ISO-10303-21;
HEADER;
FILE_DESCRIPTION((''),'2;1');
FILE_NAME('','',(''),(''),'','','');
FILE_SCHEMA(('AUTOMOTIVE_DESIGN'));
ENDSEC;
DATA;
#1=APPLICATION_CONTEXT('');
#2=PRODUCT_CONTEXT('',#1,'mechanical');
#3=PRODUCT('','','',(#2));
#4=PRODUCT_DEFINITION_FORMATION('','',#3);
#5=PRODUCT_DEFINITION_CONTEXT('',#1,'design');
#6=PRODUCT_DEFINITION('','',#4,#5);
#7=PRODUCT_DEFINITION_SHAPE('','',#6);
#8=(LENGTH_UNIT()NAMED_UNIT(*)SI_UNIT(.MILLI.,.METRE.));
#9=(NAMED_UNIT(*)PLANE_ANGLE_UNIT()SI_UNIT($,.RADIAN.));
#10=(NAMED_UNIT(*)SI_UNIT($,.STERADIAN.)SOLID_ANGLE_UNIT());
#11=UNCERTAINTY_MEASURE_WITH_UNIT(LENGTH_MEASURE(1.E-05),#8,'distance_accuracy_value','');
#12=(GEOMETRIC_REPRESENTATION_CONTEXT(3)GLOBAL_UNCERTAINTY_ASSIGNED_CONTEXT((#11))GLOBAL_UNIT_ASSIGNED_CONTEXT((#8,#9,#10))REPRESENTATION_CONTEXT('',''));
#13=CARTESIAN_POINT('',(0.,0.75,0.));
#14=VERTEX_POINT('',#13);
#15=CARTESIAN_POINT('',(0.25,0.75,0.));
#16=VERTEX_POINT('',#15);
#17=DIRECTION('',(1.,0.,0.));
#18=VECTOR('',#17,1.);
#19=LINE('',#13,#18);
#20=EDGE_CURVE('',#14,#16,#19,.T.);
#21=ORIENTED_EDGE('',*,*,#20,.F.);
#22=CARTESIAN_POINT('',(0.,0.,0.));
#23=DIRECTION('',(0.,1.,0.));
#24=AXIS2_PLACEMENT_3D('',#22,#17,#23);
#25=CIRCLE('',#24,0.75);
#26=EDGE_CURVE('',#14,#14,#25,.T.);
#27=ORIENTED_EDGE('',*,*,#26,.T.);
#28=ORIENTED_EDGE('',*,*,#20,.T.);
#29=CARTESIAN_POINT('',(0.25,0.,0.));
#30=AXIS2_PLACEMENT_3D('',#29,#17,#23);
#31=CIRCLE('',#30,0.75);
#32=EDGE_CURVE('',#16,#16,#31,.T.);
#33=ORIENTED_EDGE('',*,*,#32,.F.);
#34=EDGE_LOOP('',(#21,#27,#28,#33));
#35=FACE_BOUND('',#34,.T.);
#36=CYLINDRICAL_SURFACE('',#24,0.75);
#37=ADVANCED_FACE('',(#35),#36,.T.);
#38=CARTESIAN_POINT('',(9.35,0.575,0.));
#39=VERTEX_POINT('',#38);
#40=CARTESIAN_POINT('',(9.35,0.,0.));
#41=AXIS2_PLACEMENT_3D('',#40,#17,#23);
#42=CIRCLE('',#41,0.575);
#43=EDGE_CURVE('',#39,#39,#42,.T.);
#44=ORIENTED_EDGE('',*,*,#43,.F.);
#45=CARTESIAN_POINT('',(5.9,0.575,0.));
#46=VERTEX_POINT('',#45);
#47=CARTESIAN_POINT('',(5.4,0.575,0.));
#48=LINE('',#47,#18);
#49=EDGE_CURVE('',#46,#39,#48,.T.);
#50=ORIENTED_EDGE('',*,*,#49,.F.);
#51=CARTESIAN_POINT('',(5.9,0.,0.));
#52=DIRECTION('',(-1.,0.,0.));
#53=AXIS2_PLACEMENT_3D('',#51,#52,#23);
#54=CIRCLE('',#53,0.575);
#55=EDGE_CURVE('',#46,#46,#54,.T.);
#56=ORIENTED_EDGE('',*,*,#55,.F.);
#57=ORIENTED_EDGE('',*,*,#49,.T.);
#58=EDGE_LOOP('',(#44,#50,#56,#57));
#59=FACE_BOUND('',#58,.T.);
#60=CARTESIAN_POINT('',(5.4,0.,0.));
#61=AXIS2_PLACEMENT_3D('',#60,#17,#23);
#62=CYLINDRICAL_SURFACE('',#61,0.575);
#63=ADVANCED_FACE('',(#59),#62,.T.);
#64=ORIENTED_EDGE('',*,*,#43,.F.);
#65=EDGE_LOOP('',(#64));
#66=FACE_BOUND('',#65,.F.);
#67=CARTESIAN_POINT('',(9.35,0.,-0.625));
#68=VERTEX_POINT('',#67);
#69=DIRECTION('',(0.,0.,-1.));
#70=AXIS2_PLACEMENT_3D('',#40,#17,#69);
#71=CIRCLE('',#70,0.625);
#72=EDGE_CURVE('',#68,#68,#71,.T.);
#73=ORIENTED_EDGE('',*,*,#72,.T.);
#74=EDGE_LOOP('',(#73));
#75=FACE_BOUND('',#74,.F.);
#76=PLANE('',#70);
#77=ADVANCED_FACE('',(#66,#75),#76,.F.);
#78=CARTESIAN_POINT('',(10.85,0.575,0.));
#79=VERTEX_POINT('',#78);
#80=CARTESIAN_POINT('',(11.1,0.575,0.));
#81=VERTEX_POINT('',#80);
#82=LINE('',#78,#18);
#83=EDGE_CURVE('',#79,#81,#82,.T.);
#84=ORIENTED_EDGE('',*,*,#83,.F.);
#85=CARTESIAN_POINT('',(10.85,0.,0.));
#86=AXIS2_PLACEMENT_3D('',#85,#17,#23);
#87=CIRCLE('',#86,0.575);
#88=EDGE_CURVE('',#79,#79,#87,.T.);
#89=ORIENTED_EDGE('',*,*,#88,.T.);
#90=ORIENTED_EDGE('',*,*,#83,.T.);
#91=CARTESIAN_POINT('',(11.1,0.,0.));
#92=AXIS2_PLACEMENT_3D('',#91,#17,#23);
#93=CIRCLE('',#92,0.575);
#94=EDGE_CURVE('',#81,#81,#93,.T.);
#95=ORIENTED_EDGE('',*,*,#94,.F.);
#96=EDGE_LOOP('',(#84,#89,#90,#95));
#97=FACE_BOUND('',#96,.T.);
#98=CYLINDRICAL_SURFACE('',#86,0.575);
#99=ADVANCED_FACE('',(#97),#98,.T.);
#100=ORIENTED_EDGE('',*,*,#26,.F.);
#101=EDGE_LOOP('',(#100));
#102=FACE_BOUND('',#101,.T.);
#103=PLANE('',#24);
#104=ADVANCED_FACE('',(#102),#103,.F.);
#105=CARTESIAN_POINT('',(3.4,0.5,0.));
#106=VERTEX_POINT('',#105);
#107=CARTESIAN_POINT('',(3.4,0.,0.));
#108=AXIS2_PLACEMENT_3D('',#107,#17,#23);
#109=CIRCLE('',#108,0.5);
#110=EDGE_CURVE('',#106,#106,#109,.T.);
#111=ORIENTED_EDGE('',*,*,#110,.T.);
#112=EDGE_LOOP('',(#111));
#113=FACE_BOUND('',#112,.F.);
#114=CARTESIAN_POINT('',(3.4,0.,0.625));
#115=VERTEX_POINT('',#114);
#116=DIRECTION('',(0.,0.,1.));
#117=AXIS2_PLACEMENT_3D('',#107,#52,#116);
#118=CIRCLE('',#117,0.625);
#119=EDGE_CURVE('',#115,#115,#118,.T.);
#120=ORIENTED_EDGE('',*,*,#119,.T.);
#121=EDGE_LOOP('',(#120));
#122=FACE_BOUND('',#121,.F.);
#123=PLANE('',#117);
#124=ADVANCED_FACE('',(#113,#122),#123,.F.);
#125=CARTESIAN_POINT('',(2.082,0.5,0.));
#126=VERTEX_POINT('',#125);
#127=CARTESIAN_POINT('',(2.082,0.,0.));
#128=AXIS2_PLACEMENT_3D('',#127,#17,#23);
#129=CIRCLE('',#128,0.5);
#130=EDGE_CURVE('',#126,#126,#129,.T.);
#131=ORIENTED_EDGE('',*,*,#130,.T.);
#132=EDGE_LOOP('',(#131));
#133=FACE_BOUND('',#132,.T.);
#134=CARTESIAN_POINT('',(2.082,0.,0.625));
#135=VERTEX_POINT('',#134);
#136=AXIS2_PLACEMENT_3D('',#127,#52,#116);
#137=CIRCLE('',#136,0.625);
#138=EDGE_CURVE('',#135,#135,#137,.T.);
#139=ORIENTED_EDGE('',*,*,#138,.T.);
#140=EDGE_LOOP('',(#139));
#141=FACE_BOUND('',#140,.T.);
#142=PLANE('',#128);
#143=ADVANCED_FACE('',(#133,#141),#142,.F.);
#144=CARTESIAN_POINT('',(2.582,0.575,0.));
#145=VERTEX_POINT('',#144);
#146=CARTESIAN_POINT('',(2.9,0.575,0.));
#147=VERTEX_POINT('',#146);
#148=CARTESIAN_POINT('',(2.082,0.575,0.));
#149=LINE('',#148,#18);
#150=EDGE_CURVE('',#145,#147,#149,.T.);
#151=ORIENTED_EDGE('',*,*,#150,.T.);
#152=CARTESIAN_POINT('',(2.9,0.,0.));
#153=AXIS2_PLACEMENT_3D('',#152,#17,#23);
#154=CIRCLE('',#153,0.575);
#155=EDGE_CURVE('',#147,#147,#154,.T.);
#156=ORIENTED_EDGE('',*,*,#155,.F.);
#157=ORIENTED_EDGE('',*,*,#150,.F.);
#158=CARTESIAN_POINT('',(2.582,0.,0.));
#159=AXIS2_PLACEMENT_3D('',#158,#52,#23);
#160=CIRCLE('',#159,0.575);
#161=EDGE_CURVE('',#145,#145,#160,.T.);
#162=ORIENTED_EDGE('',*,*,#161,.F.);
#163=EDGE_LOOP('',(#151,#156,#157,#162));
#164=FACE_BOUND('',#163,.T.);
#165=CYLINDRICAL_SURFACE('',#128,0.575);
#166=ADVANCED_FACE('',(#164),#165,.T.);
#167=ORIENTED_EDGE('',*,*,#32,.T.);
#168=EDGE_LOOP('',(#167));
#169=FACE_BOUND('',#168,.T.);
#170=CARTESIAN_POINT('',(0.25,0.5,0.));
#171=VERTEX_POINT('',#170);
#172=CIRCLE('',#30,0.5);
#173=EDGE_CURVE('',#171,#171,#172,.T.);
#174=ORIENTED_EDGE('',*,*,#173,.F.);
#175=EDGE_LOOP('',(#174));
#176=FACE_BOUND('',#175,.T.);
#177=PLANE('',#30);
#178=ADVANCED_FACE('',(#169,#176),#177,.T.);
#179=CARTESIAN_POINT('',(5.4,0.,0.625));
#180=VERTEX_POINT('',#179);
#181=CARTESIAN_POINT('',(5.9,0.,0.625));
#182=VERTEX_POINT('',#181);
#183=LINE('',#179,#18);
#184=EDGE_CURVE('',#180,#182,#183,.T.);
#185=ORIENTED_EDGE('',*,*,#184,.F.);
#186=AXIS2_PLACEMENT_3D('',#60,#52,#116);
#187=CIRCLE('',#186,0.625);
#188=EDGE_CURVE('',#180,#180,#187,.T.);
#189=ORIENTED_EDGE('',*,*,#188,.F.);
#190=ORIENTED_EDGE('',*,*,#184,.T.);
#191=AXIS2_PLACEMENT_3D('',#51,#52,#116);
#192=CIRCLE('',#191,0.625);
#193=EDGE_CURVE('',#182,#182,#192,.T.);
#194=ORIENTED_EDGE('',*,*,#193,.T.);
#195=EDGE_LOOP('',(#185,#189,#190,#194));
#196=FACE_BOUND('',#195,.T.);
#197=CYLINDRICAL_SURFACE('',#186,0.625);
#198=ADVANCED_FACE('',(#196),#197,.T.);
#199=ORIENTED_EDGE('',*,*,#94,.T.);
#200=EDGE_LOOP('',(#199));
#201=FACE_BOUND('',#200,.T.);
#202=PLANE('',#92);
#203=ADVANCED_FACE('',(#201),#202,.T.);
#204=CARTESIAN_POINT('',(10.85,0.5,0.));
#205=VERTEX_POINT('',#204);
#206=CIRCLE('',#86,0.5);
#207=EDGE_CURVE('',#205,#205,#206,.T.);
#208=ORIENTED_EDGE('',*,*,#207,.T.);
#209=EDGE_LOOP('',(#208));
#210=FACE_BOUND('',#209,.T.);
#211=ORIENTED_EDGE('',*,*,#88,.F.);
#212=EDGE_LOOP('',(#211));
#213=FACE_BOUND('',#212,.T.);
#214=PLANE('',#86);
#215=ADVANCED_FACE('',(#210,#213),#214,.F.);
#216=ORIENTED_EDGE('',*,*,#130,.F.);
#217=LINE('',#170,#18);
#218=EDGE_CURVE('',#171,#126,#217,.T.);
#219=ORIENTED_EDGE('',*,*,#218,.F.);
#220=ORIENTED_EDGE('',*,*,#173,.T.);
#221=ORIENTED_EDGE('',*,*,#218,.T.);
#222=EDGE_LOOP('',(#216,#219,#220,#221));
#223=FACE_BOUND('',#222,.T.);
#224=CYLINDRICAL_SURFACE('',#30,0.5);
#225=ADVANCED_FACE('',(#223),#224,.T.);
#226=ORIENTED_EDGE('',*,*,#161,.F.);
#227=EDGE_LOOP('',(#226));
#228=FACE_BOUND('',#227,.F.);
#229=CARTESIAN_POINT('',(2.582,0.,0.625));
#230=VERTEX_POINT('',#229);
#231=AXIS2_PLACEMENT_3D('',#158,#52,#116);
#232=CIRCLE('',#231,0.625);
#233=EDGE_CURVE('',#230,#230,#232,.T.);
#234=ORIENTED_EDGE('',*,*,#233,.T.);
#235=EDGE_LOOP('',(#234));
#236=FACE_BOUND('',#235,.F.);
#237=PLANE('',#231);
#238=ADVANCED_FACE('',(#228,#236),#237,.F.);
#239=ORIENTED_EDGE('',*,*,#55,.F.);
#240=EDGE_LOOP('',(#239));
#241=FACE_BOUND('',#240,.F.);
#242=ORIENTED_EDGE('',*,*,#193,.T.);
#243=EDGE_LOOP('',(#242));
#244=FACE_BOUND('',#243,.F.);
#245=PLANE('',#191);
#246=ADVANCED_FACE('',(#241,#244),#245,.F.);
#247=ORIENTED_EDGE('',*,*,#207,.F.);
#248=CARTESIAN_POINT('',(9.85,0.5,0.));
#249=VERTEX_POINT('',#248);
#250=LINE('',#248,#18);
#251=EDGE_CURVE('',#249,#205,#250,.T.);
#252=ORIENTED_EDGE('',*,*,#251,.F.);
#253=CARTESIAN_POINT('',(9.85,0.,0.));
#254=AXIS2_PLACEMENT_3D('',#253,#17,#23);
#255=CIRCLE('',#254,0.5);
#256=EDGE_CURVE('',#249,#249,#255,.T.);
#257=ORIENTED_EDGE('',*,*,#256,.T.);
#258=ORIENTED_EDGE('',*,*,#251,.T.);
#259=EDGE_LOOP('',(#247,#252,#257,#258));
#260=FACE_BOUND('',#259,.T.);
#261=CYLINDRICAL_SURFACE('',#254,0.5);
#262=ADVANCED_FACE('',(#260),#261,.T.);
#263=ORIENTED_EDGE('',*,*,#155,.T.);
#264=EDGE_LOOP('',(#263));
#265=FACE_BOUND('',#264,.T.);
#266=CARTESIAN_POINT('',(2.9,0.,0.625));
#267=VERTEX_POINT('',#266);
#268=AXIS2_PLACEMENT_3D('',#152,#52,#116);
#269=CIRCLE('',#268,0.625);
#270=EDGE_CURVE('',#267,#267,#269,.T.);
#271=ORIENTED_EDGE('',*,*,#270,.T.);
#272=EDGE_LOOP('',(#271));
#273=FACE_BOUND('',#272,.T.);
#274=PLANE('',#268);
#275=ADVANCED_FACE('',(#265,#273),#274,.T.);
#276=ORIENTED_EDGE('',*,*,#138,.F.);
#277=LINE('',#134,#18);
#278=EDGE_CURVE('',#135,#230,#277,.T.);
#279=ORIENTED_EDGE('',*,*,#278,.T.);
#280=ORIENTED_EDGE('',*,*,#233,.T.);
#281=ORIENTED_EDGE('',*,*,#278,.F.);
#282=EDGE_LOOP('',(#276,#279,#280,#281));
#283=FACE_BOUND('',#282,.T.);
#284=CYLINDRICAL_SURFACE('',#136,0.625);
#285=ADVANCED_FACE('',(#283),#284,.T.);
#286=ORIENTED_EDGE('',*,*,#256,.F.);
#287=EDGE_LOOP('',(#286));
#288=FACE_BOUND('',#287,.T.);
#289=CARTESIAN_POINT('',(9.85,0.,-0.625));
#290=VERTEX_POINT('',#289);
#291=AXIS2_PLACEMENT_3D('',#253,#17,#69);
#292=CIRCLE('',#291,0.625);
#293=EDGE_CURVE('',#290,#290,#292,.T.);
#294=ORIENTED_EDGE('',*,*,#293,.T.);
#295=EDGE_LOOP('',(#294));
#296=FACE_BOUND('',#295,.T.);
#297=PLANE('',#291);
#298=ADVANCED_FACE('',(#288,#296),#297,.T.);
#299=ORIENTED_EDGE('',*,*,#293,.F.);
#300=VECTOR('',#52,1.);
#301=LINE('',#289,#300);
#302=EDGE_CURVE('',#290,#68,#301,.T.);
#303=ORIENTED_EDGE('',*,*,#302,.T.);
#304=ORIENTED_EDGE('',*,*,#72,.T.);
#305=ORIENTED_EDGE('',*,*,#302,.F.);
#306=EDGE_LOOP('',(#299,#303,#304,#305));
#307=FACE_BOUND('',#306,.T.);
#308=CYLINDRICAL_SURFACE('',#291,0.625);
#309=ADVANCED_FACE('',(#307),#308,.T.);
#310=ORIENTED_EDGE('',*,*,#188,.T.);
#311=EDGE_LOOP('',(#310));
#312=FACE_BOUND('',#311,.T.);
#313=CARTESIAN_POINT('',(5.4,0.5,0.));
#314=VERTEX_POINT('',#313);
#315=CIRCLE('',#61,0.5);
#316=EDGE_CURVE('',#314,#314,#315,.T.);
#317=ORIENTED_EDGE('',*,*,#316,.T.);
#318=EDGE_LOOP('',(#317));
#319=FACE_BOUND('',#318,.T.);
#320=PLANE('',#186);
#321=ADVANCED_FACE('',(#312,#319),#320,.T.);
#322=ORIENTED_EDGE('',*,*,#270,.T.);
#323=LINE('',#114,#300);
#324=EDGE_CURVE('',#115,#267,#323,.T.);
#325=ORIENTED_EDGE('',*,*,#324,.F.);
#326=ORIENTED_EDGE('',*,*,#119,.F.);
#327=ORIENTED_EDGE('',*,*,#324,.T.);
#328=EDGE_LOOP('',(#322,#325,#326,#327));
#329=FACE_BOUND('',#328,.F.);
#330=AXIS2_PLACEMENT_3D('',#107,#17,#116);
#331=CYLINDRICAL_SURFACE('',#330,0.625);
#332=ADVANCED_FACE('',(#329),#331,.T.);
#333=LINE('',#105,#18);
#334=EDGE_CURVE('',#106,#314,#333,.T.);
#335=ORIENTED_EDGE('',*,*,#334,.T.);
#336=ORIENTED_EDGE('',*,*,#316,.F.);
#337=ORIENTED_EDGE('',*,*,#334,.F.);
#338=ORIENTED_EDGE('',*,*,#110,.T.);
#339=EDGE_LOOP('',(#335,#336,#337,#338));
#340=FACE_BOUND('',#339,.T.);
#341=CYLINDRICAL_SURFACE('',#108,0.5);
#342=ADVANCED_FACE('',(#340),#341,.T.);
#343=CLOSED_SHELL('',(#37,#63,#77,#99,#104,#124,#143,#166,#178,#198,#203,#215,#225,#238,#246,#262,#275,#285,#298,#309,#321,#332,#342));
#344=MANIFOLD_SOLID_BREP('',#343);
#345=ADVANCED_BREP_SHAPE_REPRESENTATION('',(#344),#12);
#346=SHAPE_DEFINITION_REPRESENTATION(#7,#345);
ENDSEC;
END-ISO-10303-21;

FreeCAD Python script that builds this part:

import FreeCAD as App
import Part
import Sketcher

V = App.Vector
Q = App.Units.Quantity

doc = App.newDocument("Part")
body = doc.addObject("PartDesign::Body", "Body")

sketch1 = body.newObject("Sketcher::SketchObject", "Sketch")
sketch1.AttachmentSupport = (doc.getObject("XY_Plane"), [""])
sketch1.MapMode = "FlatFace"
sketch1.addGeometry([
    Part.LineSegment(V(0, 0.75, 0), V(0, 0, 0)),
    Part.LineSegment(V(0, 0, 0), V(11.1, 0, 0)),
    Part.LineSegment(V(11.1, 0, 0), V(11.1, 0.57, 0)),
    Part.LineSegment(V(11.1, 0.57, 0), V(10.85, 0.57, 0)),
    Part.LineSegment(V(10.85, 0.57, 0), V(10.85, 0.5, 0)),
    Part.LineSegment(V(10.85, 0.5, 0), V(9.85, 0.5, 0)),
    Part.LineSegment(V(9.85, 0.5, 0), V(9.85, 0.57, 0)),
    Part.LineSegment(V(9.85, 0.57, 0), V(5.4, 0.57, 0)),
    Part.LineSegment(V(5.4, 0.57, 0), V(5.4, 0.5, 0)),
    Part.LineSegment(V(5.4, 0.5, 0), V(3.4, 0.5, 0)),
    Part.LineSegment(V(3.4, 0.5, 0), V(3.4, 0.57, 0)),
    Part.LineSegment(V(3.4, 0.57, 0), V(2.08, 0.57, 0)),
    Part.LineSegment(V(2.08, 0.57, 0), V(2.08, 0.5, 0)),
    Part.LineSegment(V(2.08, 0.5, 0), V(0.25, 0.5, 0)),
    Part.LineSegment(V(0.25, 0.5, 0), V(0.25, 0.75, 0)),
    Part.LineSegment(V(0.25, 0.75, 0), V(0, 0.75, 0)),
], False)
sketch1.addConstraint([
    Sketcher.Constraint("Coincident", 0, 2, 1, 1),
    Sketcher.Constraint("Coincident", 1, 2, 2, 1),
    Sketcher.Constraint("Coincident", 2, 2, 3, 1),
    Sketcher.Constraint("Coincident", 3, 2, 4, 1),
    Sketcher.Constraint("Coincident", 4, 2, 5, 1),
    Sketcher.Constraint("Coincident", 5, 2, 6, 1),
    Sketcher.Constraint("Coincident", 6, 2, 7, 1),
    Sketcher.Constraint("Coincident", 7, 2, 8, 1),
    Sketcher.Constraint("Coincident", 8, 2, 9, 1),
    Sketcher.Constraint("Coincident", 9, 2, 10, 1),
    Sketcher.Constraint("Coincident", 10, 2, 11, 1),
    Sketcher.Constraint("Coincident", 11, 2, 12, 1),
    Sketcher.Constraint("Coincident", 12, 2, 13, 1),
    Sketcher.Constraint("Coincident", 13, 2, 14, 1),
    Sketcher.Constraint("Coincident", 14, 2, 15, 1),
    Sketcher.Constraint("Coincident", 15, 2, 0, 1),
    Sketcher.Constraint("Vertical", 0),
    Sketcher.Constraint("Horizontal", 1),
    Sketcher.Constraint("Vertical", 2),
    Sketcher.Constraint("Horizontal", 3),
    Sketcher.Constraint("Vertical", 4),
    Sketcher.Constraint("Horizontal", 5),
    Sketcher.Constraint("Vertical", 6),
    Sketcher.Constraint("Horizontal", 7),
    Sketcher.Constraint("Vertical", 8),
    Sketcher.Constraint("Horizontal", 9),
    Sketcher.Constraint("Vertical", 10),
    Sketcher.Constraint("Horizontal", 11),
    Sketcher.Constraint("Vertical", 12),
    Sketcher.Constraint("Horizontal", 13),
    Sketcher.Constraint("Vertical", 14),
    Sketcher.Constraint("Horizontal", 15),
    Sketcher.Constraint("Coincident", 0, 2, -1, 1),
    Sketcher.Constraint("Horizontal", 3, 2, 6, 2),
    Sketcher.Constraint("Horizontal", 5, 2, 8, 2),
    Sketcher.Constraint("Horizontal", 7, 2, 10, 2),
    Sketcher.Constraint("Horizontal", 9, 2, 12, 2),
    Sketcher.Constraint("Equal", 3, 15),
    Sketcher.Constraint("Equal", 15, 14),
    Sketcher.Constraint("DistanceX", 5, 2, 5, 1, Q("1 mm")),
    Sketcher.Constraint("DistanceX", 9, 2, 9, 1, Q("2 mm")),
    Sketcher.Constraint("DistanceX", 1, 1, 1, 2, Q("11.1 mm")),
    Sketcher.Constraint("DistanceX", 3, 2, 3, 1, Q("0.25 mm")),
    Sketcher.Constraint("DistanceX", 7, 2, 7, 1, Q("4.45 mm")),
    Sketcher.Constraint("DistanceY", 0, 2, 0, 1, Q("0.75 mm")),
    Sketcher.Constraint("DistanceX", 11, 2, 11, 1, Q("1.318 mm")),
    Sketcher.Constraint("DistanceY", 2, 1, 2, 2, Q("0.575 mm")),
])
revolution = body.newObject("PartDesign::Revolution", "Revolution")
revolution.Profile = sketch1
revolution.ReferenceAxis = (sketch1, ["H_Axis"])
revolution.Angle = 360

sketch2 = body.newObject("Sketcher::SketchObject", "Sketch001")
sketch2.AttachmentSupport = (doc.getObject("YZ_Plane"), [""])
sketch2.MapMode = "FlatFace"
sketch2.AttachmentOffset = App.Placement(V(0, 0, 2.082), App.Rotation())
sketch2.addGeometry([
    Part.Circle(V(0, 0, 0), V(0, 0, 1), 0.6),
    Part.Circle(V(0, 0, 0), V(0, 0, 1), 0.6),
], False)
sketch2.addConstraint([
    Sketcher.Constraint("Coincident", 0, 3, -1, 1),
    Sketcher.Constraint("Coincident", 1, 3, -1, 1),
    Sketcher.Constraint("Diameter", 0, Q("1.25 mm")),
    Sketcher.Constraint("Diameter", 1, Q("1.15 mm")),
])
pad1 = body.newObject("PartDesign::Pad", "Pad")
pad1.Profile = sketch2
pad1.Length = 0.5

sketch3 = body.newObject("Sketcher::SketchObject", "Sketch002")
sketch3.AttachmentSupport = (doc.getObject("YZ_Plane"), [""])
sketch3.MapMode = "FlatFace"
sketch3.AttachmentOffset = App.Placement(V(0, 0, 3.4), App.Rotation())
sketch3.addGeometry([
    Part.Circle(V(0, 0, 0), V(0, 0, 1), 0.6),
    Part.Circle(V(0, 0, 0), V(0, 0, 1), 0.6),
], False)
sketch3.addConstraint([
    Sketcher.Constraint("Coincident", 0, 3, -1, 1),
    Sketcher.Constraint("Coincident", 1, 3, -1, 1),
    Sketcher.Constraint("Diameter", 0, Q("1.25 mm")),
    Sketcher.Constraint("Diameter", 1, Q("1.15 mm")),
])
pad2 = body.newObject("PartDesign::Pad", "Pad001")
pad2.Profile = sketch3
pad2.Length = 0.5
pad2.Reversed = True

sketch4 = body.newObject("Sketcher::SketchObject", "Sketch003")
sketch4.AttachmentSupport = (doc.getObject("YZ_Plane"), [""])
sketch4.MapMode = "FlatFace"
sketch4.AttachmentOffset = App.Placement(V(0, 0, 5.4), App.Rotation())
sketch4.addGeometry([
    Part.Circle(V(0, 0, 0), V(0, 0, 1), 0.6),
    Part.Circle(V(0, 0, 0), V(0, 0, 1), 0.6),
], False)
sketch4.addConstraint([
    Sketcher.Constraint("Coincident", 0, 3, -1, 1),
    Sketcher.Constraint("Coincident", 1, 3, -1, 1),
    Sketcher.Constraint("Diameter", 0, Q("1.25 mm")),
    Sketcher.Constraint("Diameter", 1, Q("1.15 mm")),
])
pad3 = body.newObject("PartDesign::Pad", "Pad002")
pad3.Profile = sketch4
pad3.Length = 0.5

sketch5 = body.newObject("Sketcher::SketchObject", "Sketch004")
sketch5.AttachmentSupport = (doc.getObject("YZ_Plane"), [""])
sketch5.MapMode = "FlatFace"
sketch5.AttachmentOffset = App.Placement(V(0, 0, 9.85), App.Rotation())
sketch5.addGeometry([
    Part.Circle(V(0, 0, 0), V(0, 0, 1), 0.6),
    Part.Circle(V(0, 0, 0), V(0, 0, 1), 0.6),
], False)
sketch5.addConstraint([
    Sketcher.Constraint("Coincident", 0, 3, -1, 1),
    Sketcher.Constraint("Coincident", 1, 3, -1, 1),
    Sketcher.Constraint("Diameter", 0, Q("1.25 mm")),
    Sketcher.Constraint("Diameter", 1, Q("1.15 mm")),
])
pad4 = body.newObject("PartDesign::Pad", "Pad003")
pad4.Profile = sketch5
pad4.Length = 0.5
pad4.Reversed = True

doc.recompute()
